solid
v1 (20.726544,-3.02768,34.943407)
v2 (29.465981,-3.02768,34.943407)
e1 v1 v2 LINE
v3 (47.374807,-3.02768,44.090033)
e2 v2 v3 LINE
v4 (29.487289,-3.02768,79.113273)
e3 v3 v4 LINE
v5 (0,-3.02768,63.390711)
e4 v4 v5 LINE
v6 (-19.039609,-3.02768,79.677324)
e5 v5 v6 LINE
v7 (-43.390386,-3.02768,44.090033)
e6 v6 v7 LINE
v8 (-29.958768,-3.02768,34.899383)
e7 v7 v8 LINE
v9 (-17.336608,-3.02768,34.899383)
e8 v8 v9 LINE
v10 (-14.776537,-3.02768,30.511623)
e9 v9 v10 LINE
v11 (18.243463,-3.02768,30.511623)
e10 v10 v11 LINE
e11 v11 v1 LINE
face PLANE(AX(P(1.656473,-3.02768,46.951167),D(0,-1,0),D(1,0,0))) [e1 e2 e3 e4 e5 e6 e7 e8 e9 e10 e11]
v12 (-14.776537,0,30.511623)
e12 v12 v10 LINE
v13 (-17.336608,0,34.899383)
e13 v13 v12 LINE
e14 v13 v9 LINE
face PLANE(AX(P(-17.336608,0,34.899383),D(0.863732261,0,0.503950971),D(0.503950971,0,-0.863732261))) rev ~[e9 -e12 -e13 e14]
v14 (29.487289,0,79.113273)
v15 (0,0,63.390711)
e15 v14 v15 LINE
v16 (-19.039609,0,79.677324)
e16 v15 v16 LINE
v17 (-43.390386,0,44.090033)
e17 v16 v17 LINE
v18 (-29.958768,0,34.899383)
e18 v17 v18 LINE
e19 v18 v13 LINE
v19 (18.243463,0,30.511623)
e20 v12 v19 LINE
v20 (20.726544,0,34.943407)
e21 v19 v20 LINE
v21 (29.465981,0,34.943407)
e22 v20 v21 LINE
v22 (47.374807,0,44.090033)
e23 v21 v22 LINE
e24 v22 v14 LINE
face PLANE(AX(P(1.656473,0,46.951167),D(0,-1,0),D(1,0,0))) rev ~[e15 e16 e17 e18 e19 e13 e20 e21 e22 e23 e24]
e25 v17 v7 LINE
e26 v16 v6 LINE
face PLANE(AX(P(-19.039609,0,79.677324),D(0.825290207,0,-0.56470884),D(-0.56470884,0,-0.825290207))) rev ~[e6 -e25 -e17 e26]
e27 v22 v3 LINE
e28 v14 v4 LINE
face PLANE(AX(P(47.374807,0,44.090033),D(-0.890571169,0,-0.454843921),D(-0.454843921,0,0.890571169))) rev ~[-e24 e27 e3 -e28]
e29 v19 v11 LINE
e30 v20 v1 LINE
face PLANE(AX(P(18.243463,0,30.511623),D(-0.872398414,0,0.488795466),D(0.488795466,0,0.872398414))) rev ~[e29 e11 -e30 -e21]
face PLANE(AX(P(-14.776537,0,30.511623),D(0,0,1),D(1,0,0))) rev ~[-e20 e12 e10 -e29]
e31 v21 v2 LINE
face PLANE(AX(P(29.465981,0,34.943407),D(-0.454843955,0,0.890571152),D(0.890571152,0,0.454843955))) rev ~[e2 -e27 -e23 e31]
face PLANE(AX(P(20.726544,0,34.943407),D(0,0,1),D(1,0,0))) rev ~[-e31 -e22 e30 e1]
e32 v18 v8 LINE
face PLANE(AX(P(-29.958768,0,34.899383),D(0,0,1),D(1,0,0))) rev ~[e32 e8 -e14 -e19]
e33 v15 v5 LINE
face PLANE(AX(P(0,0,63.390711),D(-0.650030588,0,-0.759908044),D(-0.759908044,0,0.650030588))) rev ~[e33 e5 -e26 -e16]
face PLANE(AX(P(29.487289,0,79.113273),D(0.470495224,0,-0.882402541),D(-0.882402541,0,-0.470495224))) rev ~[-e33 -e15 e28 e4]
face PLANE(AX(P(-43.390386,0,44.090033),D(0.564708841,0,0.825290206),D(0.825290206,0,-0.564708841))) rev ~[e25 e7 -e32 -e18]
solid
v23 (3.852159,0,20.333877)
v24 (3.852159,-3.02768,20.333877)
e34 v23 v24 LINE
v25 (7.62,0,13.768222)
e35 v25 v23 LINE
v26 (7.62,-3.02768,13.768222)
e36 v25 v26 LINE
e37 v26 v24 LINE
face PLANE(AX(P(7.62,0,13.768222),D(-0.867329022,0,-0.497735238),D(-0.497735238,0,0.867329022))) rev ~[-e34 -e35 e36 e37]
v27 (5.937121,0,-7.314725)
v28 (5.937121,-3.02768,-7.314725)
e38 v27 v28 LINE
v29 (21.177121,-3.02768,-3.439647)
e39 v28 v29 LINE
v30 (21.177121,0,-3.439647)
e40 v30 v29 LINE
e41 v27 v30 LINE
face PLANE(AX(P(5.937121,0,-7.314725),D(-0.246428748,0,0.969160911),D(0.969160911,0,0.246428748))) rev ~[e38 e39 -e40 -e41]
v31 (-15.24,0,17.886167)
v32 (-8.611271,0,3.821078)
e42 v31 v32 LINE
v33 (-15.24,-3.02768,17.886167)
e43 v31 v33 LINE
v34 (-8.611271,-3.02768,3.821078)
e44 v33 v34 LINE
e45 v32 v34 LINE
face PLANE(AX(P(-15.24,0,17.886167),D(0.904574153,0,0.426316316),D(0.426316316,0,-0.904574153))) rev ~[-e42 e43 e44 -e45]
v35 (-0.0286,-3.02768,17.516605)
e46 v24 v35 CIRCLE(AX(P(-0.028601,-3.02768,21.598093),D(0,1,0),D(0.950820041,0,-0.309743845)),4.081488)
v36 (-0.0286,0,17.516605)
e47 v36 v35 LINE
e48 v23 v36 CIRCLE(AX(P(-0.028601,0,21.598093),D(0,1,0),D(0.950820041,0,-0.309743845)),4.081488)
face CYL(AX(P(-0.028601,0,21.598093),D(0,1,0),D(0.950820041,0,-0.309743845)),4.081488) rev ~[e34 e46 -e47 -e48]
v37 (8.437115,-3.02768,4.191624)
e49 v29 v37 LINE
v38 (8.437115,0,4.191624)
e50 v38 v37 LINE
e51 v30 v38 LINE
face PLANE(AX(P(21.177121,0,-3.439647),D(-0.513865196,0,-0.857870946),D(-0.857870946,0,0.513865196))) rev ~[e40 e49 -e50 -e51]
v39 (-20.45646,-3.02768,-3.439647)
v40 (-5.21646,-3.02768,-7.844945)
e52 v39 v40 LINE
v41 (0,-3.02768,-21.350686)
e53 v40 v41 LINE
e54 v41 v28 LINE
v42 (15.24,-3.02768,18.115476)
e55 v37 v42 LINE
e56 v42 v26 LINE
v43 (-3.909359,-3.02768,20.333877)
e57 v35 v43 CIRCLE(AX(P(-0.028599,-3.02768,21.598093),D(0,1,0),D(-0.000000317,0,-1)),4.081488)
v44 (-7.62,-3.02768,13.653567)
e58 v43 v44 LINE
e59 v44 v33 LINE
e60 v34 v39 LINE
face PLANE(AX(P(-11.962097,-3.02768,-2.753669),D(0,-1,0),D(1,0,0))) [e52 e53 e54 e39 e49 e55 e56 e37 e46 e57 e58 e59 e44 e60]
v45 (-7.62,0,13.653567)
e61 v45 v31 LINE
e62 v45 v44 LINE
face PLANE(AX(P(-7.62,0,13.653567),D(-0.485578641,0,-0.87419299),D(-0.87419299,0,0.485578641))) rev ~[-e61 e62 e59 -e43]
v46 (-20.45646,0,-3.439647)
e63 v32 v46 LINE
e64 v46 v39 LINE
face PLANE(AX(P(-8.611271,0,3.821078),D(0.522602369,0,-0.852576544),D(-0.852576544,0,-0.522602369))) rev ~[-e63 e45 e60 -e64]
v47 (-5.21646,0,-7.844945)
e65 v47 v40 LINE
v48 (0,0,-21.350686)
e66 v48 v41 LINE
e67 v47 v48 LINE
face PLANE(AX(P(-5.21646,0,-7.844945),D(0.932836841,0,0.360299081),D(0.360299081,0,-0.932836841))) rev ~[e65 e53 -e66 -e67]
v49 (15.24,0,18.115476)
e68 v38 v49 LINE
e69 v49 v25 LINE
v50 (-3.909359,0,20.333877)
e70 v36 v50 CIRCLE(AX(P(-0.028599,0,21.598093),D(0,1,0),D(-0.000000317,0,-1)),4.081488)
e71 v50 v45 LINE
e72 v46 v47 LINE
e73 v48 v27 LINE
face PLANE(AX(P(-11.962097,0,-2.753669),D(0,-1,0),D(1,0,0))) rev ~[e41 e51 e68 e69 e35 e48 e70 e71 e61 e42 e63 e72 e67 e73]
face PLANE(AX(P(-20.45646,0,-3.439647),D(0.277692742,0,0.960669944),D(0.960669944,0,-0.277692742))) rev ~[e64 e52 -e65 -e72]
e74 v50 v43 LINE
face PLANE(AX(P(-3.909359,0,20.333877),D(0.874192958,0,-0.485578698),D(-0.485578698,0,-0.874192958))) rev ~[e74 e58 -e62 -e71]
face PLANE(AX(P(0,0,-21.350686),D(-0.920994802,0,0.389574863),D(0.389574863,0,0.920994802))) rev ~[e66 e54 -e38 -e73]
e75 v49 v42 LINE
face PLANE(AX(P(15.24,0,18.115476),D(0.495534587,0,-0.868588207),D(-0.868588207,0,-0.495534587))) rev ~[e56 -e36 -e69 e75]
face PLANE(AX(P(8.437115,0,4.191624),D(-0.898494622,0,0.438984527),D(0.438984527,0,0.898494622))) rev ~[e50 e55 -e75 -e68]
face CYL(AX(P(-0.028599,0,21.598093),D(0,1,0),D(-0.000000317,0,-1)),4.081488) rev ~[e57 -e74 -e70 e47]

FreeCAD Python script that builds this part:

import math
import FreeCAD as App
import Part
import Sketcher
from FreeCAD import Vector
Q = App.Units.Quantity

doc = App.newDocument("Part")
body = doc.addObject("PartDesign::Body", "Body")
body.AllowCompound = True

# Sketch on XZ plane
sketch1 = body.newObject("Sketcher::SketchObject", "Sketch")
sketch1.AttachmentSupport = (doc.getObject("XZ_Plane"), [""])
sketch1.MapMode = "FlatFace"
sketch1.addGeometry(Part.LineSegment(Vector(-14.8, 30.5, 0), Vector(18.2, 30.5, 0)), False)
sketch1.addGeometry(Part.LineSegment(Vector(18.2, 30.5, 0), Vector(20.7, 34.9, 0)), False)
sketch1.addGeometry(Part.LineSegment(Vector(20.7, 34.9, 0), Vector(29.5, 34.9, 0)), False)
sketch1.addGeometry(Part.LineSegment(Vector(29.5, 34.9, 0), Vector(47.4, 44.1, 0)), False)
sketch1.addGeometry(Part.LineSegment(Vector(47.4, 44.1, 0), Vector(29.5, 79.1, 0)), False)
sketch1.addGeometry(Part.LineSegment(Vector(29.5, 79.1, 0), Vector(0, 63.4, 0)), False)
sketch1.addGeometry(Part.LineSegment(Vector(0, 63.4, 0), Vector(-19, 79.7, 0)), False)
sketch1.addGeometry(Part.LineSegment(Vector(-19, 79.7, 0), Vector(-43.4, 44.1, 0)), False)
sketch1.addGeometry(Part.LineSegment(Vector(-43.4, 44.1, 0), Vector(-30, 34.9, 0)), False)
sketch1.addGeometry(Part.LineSegment(Vector(-30, 34.9, 0), Vector(-17.3, 34.9, 0)), False)
sketch1.addGeometry(Part.LineSegment(Vector(-17.3, 34.9, 0), Vector(-14.8, 30.5, 0)), False)
sketch1.addGeometry(Part.LineSegment(Vector(-20.5, -3.4, 0), Vector(-5.2, -7.8, 0)), False)
sketch1.addGeometry(Part.LineSegment(Vector(-5.2, -7.8, 0), Vector(0, -21.4, 0)), False)
sketch1.addGeometry(Part.LineSegment(Vector(0, -21.4, 0), Vector(5.9, -7.3, 0)), False)
sketch1.addGeometry(Part.LineSegment(Vector(5.9, -7.3, 0), Vector(21.2, -3.4, 0)), False)
sketch1.addGeometry(Part.LineSegment(Vector(21.2, -3.4, 0), Vector(8.4, 4.2, 0)), False)
sketch1.addGeometry(Part.LineSegment(Vector(8.4, 4.2, 0), Vector(15.2, 18.1, 0)), False)
sketch1.addGeometry(Part.LineSegment(Vector(15.2, 18.1, 0), Vector(7.6, 13.8, 0)), False)
sketch1.addGeometry(Part.LineSegment(Vector(7.6, 13.8, 0), Vector(3.9, 20.3, 0)), False)
sketch1.addGeometry(Part.ArcOfCircle(Part.Circle(Vector(0, 21.6, 0), Vector(0, 0, 1), 4.1), math.radians(-90), math.radians(-18)), False)
sketch1.addGeometry(Part.ArcOfCircle(Part.Circle(Vector(0, 21.6, 0), Vector(0, 0, 1), 4.1), math.radians(-162), math.radians(-90)), False)
sketch1.addGeometry(Part.LineSegment(Vector(-3.9, 20.3, 0), Vector(-7.6, 13.7, 0)), False)
sketch1.addGeometry(Part.LineSegment(Vector(-7.6, 13.7, 0), Vector(-15.2, 17.9, 0)), False)
sketch1.addGeometry(Part.LineSegment(Vector(-15.2, 17.9, 0), Vector(-8.6, 3.8, 0)), False)
sketch1.addGeometry(Part.LineSegment(Vector(-8.6, 3.8, 0), Vector(-20.5, -3.4, 0)), False)
sketch1.addConstraint(Sketcher.Constraint("Coincident", 0, 2, 1, 1))
sketch1.addConstraint(Sketcher.Constraint("Coincident", 1, 2, 2, 1))
sketch1.addConstraint(Sketcher.Constraint("Coincident", 2, 2, 3, 1))
sketch1.addConstraint(Sketcher.Constraint("Coincident", 3, 2, 4, 1))
sketch1.addConstraint(Sketcher.Constraint("Coincident", 4, 2, 5, 1))
sketch1.addConstraint(Sketcher.Constraint("Coincident", 5, 2, 6, 1))
sketch1.addConstraint(Sketcher.Constraint("Coincident", 6, 2, 7, 1))
sketch1.addConstraint(Sketcher.Constraint("Coincident", 7, 2, 8, 1))
sketch1.addConstraint(Sketcher.Constraint("Coincident", 8, 2, 9, 1))
sketch1.addConstraint(Sketcher.Constraint("Coincident", 9, 2, 10, 1))
sketch1.addConstraint(Sketcher.Constraint("Coincident", 10, 2, 0, 1))
sketch1.addConstraint(Sketcher.Constraint("Coincident", 11, 2, 12, 1))
sketch1.addConstraint(Sketcher.Constraint("Coincident", 12, 2, 13, 1))
sketch1.addConstraint(Sketcher.Constraint("Coincident", 13, 2, 14, 1))
sketch1.addConstraint(Sketcher.Constraint("Coincident", 14, 2, 15, 1))
sketch1.addConstraint(Sketcher.Constraint("Coincident", 15, 2, 16, 1))
sketch1.addConstraint(Sketcher.Constraint("Coincident", 16, 2, 17, 1))
sketch1.addConstraint(Sketcher.Constraint("Coincident", 17, 2, 18, 1))
sketch1.addConstraint(Sketcher.Constraint("Coincident", 18, 2, 19, 2))
sketch1.addConstraint(Sketcher.Constraint("Tangent", 19, 1, 20, 2))
sketch1.addConstraint(Sketcher.Constraint("Coincident", 20, 1, 21, 1))
sketch1.addConstraint(Sketcher.Constraint("Coincident", 21, 2, 22, 1))
sketch1.addConstraint(Sketcher.Constraint("Coincident", 22, 2, 23, 1))
sketch1.addConstraint(Sketcher.Constraint("Coincident", 23, 2, 24, 1))
sketch1.addConstraint(Sketcher.Constraint("Coincident", 24, 2, 11, 1))
sketch1.addConstraint(Sketcher.Constraint("Horizontal", 0))
sketch1.addConstraint(Sketcher.Constraint("Horizontal", 2))
sketch1.addConstraint(Sketcher.Constraint("Horizontal", 9))
sketch1.addConstraint(Sketcher.Constraint("Equal", 19, 20))
sketch1.addConstraint(Sketcher.Constraint("PointOnObject", 5, 2, -2))
sketch1.addConstraint(Sketcher.Constraint("PointOnObject", 12, 2, -2))
sketch1.addConstraint(Sketcher.Constraint("Perpendicular", 3, 4))
sketch1.addConstraint(Sketcher.Constraint("Perpendicular", 7, 8))
sketch1.addConstraint(Sketcher.Constraint("Perpendicular", 21, 22))
sketch1.addConstraint(Sketcher.Constraint("Horizontal", 3, 2, 7, 2))
sketch1.addConstraint(Sketcher.Constraint("Horizontal", 18, 2, 20, 1))
sketch1.addConstraint(Sketcher.Constraint("Horizontal", 14, 2, 24, 2))
sketch1.addConstraint(Sketcher.Constraint("Vertical", 20, 3, 19, 1))
sketch1.addConstraint(Sketcher.Constraint("Equal", 1, 10))
sketch1.addConstraint(Sketcher.Constraint("DistanceX", 0, 1, 0, 2, Q("1.3 in")))
sketch1.addConstraint(Sketcher.Constraint("Distance", 1, Q("0.2 in")))
sketch1.addConstraint(Sketcher.Constraint("Distance", 13, Q("0.6 in")))
sketch1.addConstraint(Sketcher.Constraint("DistanceX", -1, 1, 16, 2, Q("0.6 in")))
sketch1.addConstraint(Sketcher.Constraint("DistanceX", -1, 1, 17, 2, Q("0.3 in")))
sketch1.addConstraint(Sketcher.Constraint("DistanceX", 21, 2, -1, 1, Q("0.3 in")))
sketch1.addConstraint(Sketcher.Constraint("DistanceX", 22, 2, -1, 1, Q("0.6 in")))
sketch1.addConstraint(Sketcher.Constraint("DistanceX", 13, 2, 14, 2, Q("0.6 in")))
sketch1.addConstraint(Sketcher.Constraint("DistanceX", 24, 2, 11, 2, Q("0.6 in")))
sketch1.addConstraint(Sketcher.Constraint("Radius", 19, 4.081488))
sketch1.addConstraint(Sketcher.Constraint("DistanceY", 13, 2, 20, 3, Q("1.1382999 in")))
sketch1.addConstraint(Sketcher.Constraint("DistanceX", 9, 1, 9, 2, 12.62216))
sketch1.addConstraint(Sketcher.Constraint("DistanceX", 19, 3, -1, 1, 0.028601))
sketch1.addConstraint(Sketcher.Constraint("DistanceX", 6, 2, 4, 2, 48.526898))
sketch1.addConstraint(Sketcher.Constraint("DistanceY", 15, 2, 17, 2, 9.576598))
sketch1.addConstraint(Sketcher.Constraint("DistanceY", 17, 2, 0, 2, 16.743401))
sketch1.addConstraint(Sketcher.Constraint("DistanceY", 16, 2, 18, 2, 2.218401))
sketch1.addConstraint(Sketcher.Constraint("DistanceY", 21, 2, 22, 2, 4.2326))
sketch1.addConstraint(Sketcher.Constraint("Distance", 3, 20.109371))
sketch1.addConstraint(Sketcher.Constraint("Distance", 5, 33.417049))
sketch1.addConstraint(Sketcher.Constraint("Distance", 6, 25.055149))
sketch1.addConstraint(Sketcher.Constraint("Distance", 7, 43.120942))
sketch1.addConstraint(Sketcher.Constraint("Distance", 11, 15.863929))
sketch1.addConstraint(Sketcher.Constraint("Distance", 12, 14.478139))
sketch1.addConstraint(Sketcher.Constraint("Distance", 18, 7.56997))
sketch1.addConstraint(Sketcher.Constraint("Distance", 21, 7.641688))
sketch1.addConstraint(Sketcher.Constraint("Distance", 23, 15.548851))
sketch1.addConstraint(Sketcher.Constraint("DistanceX", 2, 1, 2, 2, 8.739437))
sketch1.addConstraint(Sketcher.Constraint("DistanceX", -1, 1, 2, 2, 29.465981))
sketch1.addConstraint(Sketcher.Constraint("DistanceX", -1, 1, 4, 2, 29.487289))
sketch1.addConstraint(Sketcher.Constraint("DistanceY", -1, 1, 5, 2, 63.390711))
sketch1.addConstraint(Sketcher.Constraint("DistanceX", 11, 2, -1, 1, 5.21646))
sketch1.addConstraint(Sketcher.Constraint("DistanceX", -1, 1, 13, 2, 5.937121))
sketch1.addConstraint(Sketcher.Constraint("DistanceX", 23, 2, -1, 1, 8.611271))
sketch1.addConstraint(Sketcher.Constraint("DistanceY", -1, 1, 23, 2, 3.821078))
sketch1.addConstraint(Sketcher.Constraint("DistanceX", 20, 3, 0, 2, 18.272062))
sketch1.addConstraint(Sketcher.Constraint("Distance", 15, 14.850726))
pad1 = body.newObject("PartDesign::Pad", "Pad")
pad1.Profile = sketch1
pad1.Length = Q("0.1192 in")

doc.recompute()
